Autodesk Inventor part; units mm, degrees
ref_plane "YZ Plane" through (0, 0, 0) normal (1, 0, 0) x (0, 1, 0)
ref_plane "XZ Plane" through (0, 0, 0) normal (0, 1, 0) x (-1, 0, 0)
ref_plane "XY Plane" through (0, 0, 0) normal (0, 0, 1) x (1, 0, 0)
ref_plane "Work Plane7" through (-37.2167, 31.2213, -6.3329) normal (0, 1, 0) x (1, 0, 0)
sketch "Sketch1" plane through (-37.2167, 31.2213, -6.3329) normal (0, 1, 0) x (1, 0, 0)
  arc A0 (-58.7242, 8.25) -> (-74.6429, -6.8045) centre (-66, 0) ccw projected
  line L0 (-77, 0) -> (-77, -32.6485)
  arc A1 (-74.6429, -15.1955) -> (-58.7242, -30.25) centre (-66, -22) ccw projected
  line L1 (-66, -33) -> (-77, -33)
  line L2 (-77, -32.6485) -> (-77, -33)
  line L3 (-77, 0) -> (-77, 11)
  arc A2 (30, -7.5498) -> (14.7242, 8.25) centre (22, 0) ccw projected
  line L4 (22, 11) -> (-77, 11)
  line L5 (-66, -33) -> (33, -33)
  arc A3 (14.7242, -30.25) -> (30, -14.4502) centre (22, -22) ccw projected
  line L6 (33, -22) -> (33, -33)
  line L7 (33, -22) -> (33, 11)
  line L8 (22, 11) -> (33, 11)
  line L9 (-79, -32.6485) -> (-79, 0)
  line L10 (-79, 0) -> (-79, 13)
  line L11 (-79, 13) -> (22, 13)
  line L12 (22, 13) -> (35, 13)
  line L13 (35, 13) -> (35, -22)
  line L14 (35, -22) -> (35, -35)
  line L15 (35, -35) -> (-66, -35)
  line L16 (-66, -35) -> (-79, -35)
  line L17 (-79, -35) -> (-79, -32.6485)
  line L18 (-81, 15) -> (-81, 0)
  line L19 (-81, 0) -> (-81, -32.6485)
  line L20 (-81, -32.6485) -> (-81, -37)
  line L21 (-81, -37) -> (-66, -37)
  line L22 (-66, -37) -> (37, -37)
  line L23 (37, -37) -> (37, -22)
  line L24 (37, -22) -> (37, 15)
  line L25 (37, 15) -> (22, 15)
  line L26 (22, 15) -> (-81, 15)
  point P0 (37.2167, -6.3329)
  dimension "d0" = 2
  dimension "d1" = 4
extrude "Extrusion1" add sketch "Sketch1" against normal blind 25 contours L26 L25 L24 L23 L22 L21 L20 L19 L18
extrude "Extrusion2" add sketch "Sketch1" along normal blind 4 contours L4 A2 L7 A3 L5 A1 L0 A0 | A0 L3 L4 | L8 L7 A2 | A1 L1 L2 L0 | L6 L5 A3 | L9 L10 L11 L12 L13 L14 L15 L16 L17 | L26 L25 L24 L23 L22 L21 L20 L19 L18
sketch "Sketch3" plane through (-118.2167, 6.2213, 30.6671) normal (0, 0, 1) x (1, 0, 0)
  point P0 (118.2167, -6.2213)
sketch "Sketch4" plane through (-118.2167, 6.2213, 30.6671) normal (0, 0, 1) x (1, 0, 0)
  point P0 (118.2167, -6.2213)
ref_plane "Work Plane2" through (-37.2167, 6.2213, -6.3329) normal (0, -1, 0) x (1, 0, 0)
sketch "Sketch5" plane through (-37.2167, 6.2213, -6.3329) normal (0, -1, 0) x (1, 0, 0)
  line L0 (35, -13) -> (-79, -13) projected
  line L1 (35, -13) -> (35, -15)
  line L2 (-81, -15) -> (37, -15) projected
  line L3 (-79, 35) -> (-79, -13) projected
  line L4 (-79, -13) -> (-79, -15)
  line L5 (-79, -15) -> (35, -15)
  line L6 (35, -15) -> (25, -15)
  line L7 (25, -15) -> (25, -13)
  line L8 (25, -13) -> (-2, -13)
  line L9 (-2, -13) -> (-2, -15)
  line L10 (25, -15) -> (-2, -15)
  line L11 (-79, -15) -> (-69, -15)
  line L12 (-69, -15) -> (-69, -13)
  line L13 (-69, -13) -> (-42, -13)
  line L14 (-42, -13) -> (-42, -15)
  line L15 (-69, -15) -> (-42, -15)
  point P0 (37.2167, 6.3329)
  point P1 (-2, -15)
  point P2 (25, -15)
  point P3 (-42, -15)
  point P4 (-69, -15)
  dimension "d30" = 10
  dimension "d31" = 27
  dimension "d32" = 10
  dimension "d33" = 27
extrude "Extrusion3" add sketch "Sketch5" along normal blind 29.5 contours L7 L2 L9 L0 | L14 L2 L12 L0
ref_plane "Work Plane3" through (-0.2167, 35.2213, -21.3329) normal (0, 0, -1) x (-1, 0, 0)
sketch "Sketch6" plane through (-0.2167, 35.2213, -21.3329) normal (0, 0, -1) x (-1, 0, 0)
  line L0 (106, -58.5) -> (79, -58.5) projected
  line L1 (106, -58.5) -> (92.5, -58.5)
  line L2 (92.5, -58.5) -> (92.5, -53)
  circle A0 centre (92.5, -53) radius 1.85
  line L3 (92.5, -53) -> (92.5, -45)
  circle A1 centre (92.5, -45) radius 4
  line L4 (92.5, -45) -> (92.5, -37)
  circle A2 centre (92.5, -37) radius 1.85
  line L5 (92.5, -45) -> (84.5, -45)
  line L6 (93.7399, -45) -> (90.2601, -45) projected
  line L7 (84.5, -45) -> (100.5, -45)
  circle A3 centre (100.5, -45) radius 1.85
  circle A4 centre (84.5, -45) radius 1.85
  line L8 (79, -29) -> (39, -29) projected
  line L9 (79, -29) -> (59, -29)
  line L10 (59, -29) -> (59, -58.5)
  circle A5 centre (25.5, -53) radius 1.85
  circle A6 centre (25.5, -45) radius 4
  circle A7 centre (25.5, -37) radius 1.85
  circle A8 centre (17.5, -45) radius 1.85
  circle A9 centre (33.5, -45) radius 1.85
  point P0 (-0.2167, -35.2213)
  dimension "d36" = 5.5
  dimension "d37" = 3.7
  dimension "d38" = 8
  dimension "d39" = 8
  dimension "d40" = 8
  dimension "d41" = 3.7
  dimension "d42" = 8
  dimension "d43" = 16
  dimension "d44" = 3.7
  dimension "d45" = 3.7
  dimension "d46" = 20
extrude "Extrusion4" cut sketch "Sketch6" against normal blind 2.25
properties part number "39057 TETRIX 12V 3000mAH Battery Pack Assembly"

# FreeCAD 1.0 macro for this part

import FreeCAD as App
import Part
import Sketcher
from FreeCAD import Vector

doc = App.newDocument("Part")
body = doc.addObject("PartDesign::Body", "Body")

# Sketch on XZ plane
sketch1 = body.newObject("Sketcher::SketchObject", "Sketch")
sketch1.AttachmentSupport = (doc.getObject("XZ_Plane"), [""])
sketch1.MapMode = "FlatFace"
sketch1.AttachmentOffset = App.Placement(Vector(0, 0, -31.2213), App.Rotation())
sketch1.addGeometry([
    Part.LineSegment(Vector(0, -21, 0), Vector(-118, -21, 0)),  # 0
    Part.LineSegment(Vector(-118, -21, 0), Vector(-118, 31, 0)),  # 1
    Part.LineSegment(Vector(-118, 31, 0), Vector(0, 31, 0)),  # 2
    Part.LineSegment(Vector(0, 31, 0), Vector(0, -21, 0)),  # 3
    Part.LineSegment(Vector(-116, 29, 0), Vector(-116, -19, 0)),  # 4
    Part.LineSegment(Vector(-116, -19, 0), Vector(-2, -19, 0)),  # 5
    Part.LineSegment(Vector(-2, -19, 0), Vector(-2, 29, 0)),  # 6
    Part.LineSegment(Vector(-2, 29, 0), Vector(-116, 29, 0)),  # 7
], False)
sketch1.addConstraint([
    Sketcher.Constraint("Coincident", 0, 2, 1, 1),
    Sketcher.Constraint("Coincident", 1, 2, 2, 1),
    Sketcher.Constraint("Coincident", 2, 2, 3, 1),
    Sketcher.Constraint("Coincident", 3, 2, 0, 1),
    Sketcher.Constraint("Coincident", 4, 2, 5, 1),
    Sketcher.Constraint("Coincident", 5, 2, 6, 1),
    Sketcher.Constraint("Coincident", 6, 2, 7, 1),
    Sketcher.Constraint("Coincident", 7, 2, 4, 1),
    Sketcher.Constraint("Horizontal", 0),
    Sketcher.Constraint("Vertical", 1),
    Sketcher.Constraint("Horizontal", 2),
    Sketcher.Constraint("Vertical", 3),
    Sketcher.Constraint("Vertical", 4),
    Sketcher.Constraint("Horizontal", 5),
    Sketcher.Constraint("Vertical", 6),
    Sketcher.Constraint("Horizontal", 7),
    Sketcher.Constraint("DistanceX", 0, 2, 4, 2, 2.0),
    Sketcher.Constraint("DistanceY", 0, 2, 4, 2, 2.0),
    Sketcher.Constraint("DistanceX", 5, 2, 3, 2, 2.0),
    Sketcher.Constraint("DistanceY", 6, 2, 2, 2, 2.0),
    Sketcher.Constraint("DistanceX", 0, 2, 0, 1, 118.0),
    Sketcher.Constraint("DistanceY", 1, 1, 1, 2, 52.0),
    Sketcher.Constraint("DistanceY", 0, 2, -1, 1, 21.333),
    Sketcher.Constraint("DistanceX", 0, 2, -1, 1, 118.2167),
])
pad1 = body.newObject("PartDesign::Pad", "Pad")
pad1.Profile = sketch1
pad1.Length = 25

# Sketch on XZ plane
sketch2 = body.newObject("Sketcher::SketchObject", "Sketch001")
sketch2.AttachmentSupport = (doc.getObject("XZ_Plane"), [""])
sketch2.MapMode = "FlatFace"
sketch2.AttachmentOffset = App.Placement(Vector(0, 0, -31.2213), App.Rotation())
sketch2.addGeometry([
    Part.LineSegment(Vector(-118, -21, 0), Vector(-118, 31, 0)),
    Part.LineSegment(Vector(-118, 31, 0), Vector(0, 31, 0)),
    Part.LineSegment(Vector(0, 31, 0), Vector(0, -21, 0)),
    Part.LineSegment(Vector(0, -21, 0), Vector(-118, -21, 0)),
], False)
sketch2.addConstraint([
    Sketcher.Constraint("Coincident", 0, 2, 1, 1),
    Sketcher.Constraint("Coincident", 1, 2, 2, 1),
    Sketcher.Constraint("Coincident", 2, 2, 3, 1),
    Sketcher.Constraint("Coincident", 3, 2, 0, 1),
    Sketcher.Constraint("Vertical", 0),
    Sketcher.Constraint("Horizontal", 1),
    Sketcher.Constraint("Vertical", 2),
    Sketcher.Constraint("Horizontal", 3),
    Sketcher.Constraint("DistanceX", 1, 1, 1, 2, 118.0),
    Sketcher.Constraint("DistanceY", 0, 1, 0, 2, 52.0),
    Sketcher.Constraint("DistanceY", -1, 1, 0, 2, 30.667),
    Sketcher.Constraint("DistanceX", 0, 2, -1, 1, 118.2167),
])
pad2 = body.newObject("PartDesign::Pad", "Pad001")
pad2.Profile = sketch2
pad2.Length = 4
pad2.Reversed = True

# Sketch on XZ plane
sketch3 = body.newObject("Sketcher::SketchObject", "Sketch002")
sketch3.AttachmentSupport = (doc.getObject("XZ_Plane"), [""])
sketch3.MapMode = "FlatFace"
sketch3.AttachmentOffset = App.Placement(Vector(0, 0, -6.2213), App.Rotation())
sketch3.addGeometry([
    Part.LineSegment(Vector(-12.2, -21.3, 0), Vector(-12.2, -19.3, 0)),  # 0
    Part.LineSegment(Vector(-12.2, -19.3, 0), Vector(-39.2, -19.3, 0)),  # 1
    Part.LineSegment(Vector(-39.2, -19.3, 0), Vector(-39.2, -21.3, 0)),  # 2
    Part.LineSegment(Vector(-39.2, -21.3, 0), Vector(-12.2, -21.3, 0)),  # 3
    Part.LineSegment(Vector(-79.2, -21.3, 0), Vector(-79.2, -19.3, 0)),  # 4
    Part.LineSegment(Vector(-79.2, -19.3, 0), Vector(-106.2, -19.3, 0)),  # 5
    Part.LineSegment(Vector(-106.2, -19.3, 0), Vector(-106.2, -21.3, 0)),  # 6
    Part.LineSegment(Vector(-106.2, -21.3, 0), Vector(-79.2, -21.3, 0)),  # 7
], False)
sketch3.addConstraint([
    Sketcher.Constraint("Coincident", 0, 2, 1, 1),
    Sketcher.Constraint("Coincident", 1, 2, 2, 1),
    Sketcher.Constraint("Coincident", 2, 2, 3, 1),
    Sketcher.Constraint("Coincident", 3, 2, 0, 1),
    Sketcher.Constraint("Coincident", 4, 2, 5, 1),
    Sketcher.Constraint("Coincident", 5, 2, 6, 1),
    Sketcher.Constraint("Coincident", 6, 2, 7, 1),
    Sketcher.Constraint("Coincident", 7, 2, 4, 1),
    Sketcher.Constraint("Vertical", 0),
    Sketcher.Constraint("Horizontal", 1),
    Sketcher.Constraint("Vertical", 2),
    Sketcher.Constraint("Horizontal", 3),
    Sketcher.Constraint("Vertical", 4),
    Sketcher.Constraint("Horizontal", 5),
    Sketcher.Constraint("Vertical", 6),
    Sketcher.Constraint("Horizontal", 7),
    Sketcher.Constraint("Horizontal", 1, 2, 4, 2),
    Sketcher.Constraint("Horizontal", 3, 2, 6, 2),
    Sketcher.Constraint("Equal", 3, 5),
    Sketcher.Constraint("DistanceX", 1, 2, 1, 1, 27.0),
    Sketcher.Constraint("DistanceY", 0, 1, 0, 2, 2.0),
    Sketcher.Constraint("DistanceX", 4, 2, 1, 2, 40.0),
    Sketcher.Constraint("DistanceY", 0, 2, -1, 1, 19.333),
    Sketcher.Constraint("DistanceX", 0, 2, -1, 1, 12.2167),
])
pad3 = body.newObject("PartDesign::Pad", "Pad002")
pad3.Profile = sketch3
pad3.Length = 29.5

# Sketch on XY plane
sketch4 = body.newObject("Sketcher::SketchObject", "Sketch003")
sketch4.AttachmentSupport = (doc.getObject("XY_Plane"), [""])
sketch4.MapMode = "FlatFace"
sketch4.AttachmentOffset = App.Placement(Vector(0, 0, -21.3329), App.Rotation())
sketch4.addGeometry([
    Part.Circle(Vector(-92.7, -17.8, 0), Vector(0, 0, 1), 1.9),  # 0
    Part.Circle(Vector(-84.7, -9.8, 0), Vector(0, 0, 1), 1.9),  # 1
    Part.Circle(Vector(-92.7, -1.8, 0), Vector(0, 0, 1), 1.9),  # 2
    Part.Circle(Vector(-100.7, -9.8, 0), Vector(0, 0, 1), 1.9),  # 3
    Part.Circle(Vector(-92.7, -9.8, 0), Vector(0, 0, 1), 4),  # 4
    Part.Circle(Vector(-25.7, -17.8, 0), Vector(0, 0, 1), 1.9),  # 5
    Part.Circle(Vector(-25.7, -9.8, 0), Vector(0, 0, 1), 4),  # 6
    Part.Circle(Vector(-25.7, -1.8, 0), Vector(0, 0, 1), 1.9),  # 7
    Part.Circle(Vector(-17.7, -9.8, 0), Vector(0, 0, 1), 1.9),  # 8
    Part.Circle(Vector(-33.7, -9.8, 0), Vector(0, 0, 1), 1.9),  # 9
], False)
sketch4.addConstraint([
    Sketcher.Constraint("Equal", 0, 1),
    Sketcher.Constraint("Equal", 1, 2),
    Sketcher.Constraint("Equal", 2, 3),
    Sketcher.Constraint("Equal", 3, 5),
    Sketcher.Constraint("Equal", 4, 6),
    Sketcher.Constraint("Equal", 5, 7),
    Sketcher.Constraint("Equal", 7, 8),
    Sketcher.Constraint("Equal", 8, 9),
    Sketcher.Constraint("Horizontal", 1, 3, 3, 3),
    Sketcher.Constraint("Horizontal", 3, 3, 4, 3),
    Sketcher.Constraint("Horizontal", 0, 3, 5, 3),
    Sketcher.Constraint("Horizontal", 4, 3, 6, 3),
    Sketcher.Constraint("Horizontal", 2, 3, 7, 3),
    Sketcher.Constraint("Horizontal", 6, 3, 8, 3),
    Sketcher.Constraint("Horizontal", 8, 3, 9, 3),
    Sketcher.Constraint("Vertical", 0, 3, 2, 3),
    Sketcher.Constraint("Vertical", 2, 3, 4, 3),
    Sketcher.Constraint("Vertical", 5, 3, 6, 3),
    Sketcher.Constraint("Vertical", 6, 3, 7, 3),
    Sketcher.Constraint("Diameter", 4, 8.0),
    Sketcher.Constraint("Diameter", 0, 3.7),
    Sketcher.Constraint("DistanceX", 0, 3, 1, 3, 8.0),
    Sketcher.Constraint("DistanceY", 0, 3, 1, 3, 8.0),
    Sketcher.Constraint("DistanceY", 1, 3, 2, 3, 8.0),
    Sketcher.Constraint("DistanceX", 3, 3, 0, 3, 8.0),
    Sketcher.Constraint("DistanceX", 6, 3, 8, 3, 8.0),
    Sketcher.Constraint("DistanceX", 9, 3, 6, 3, 8.0),
    Sketcher.Constraint("DistanceX", 1, 3, 5, 3, 59.0),
    Sketcher.Constraint("DistanceX", 0, 3, -1, 1, 92.7167),
    Sketcher.Constraint("DistanceY", 0, 3, -1, 1, 17.7787),
])
pocket1 = body.newObject("PartDesign::Pocket", "Pocket")
pocket1.Profile = sketch4
pocket1.Length = 2.25
pocket1.Reversed = True

doc.recompute()
